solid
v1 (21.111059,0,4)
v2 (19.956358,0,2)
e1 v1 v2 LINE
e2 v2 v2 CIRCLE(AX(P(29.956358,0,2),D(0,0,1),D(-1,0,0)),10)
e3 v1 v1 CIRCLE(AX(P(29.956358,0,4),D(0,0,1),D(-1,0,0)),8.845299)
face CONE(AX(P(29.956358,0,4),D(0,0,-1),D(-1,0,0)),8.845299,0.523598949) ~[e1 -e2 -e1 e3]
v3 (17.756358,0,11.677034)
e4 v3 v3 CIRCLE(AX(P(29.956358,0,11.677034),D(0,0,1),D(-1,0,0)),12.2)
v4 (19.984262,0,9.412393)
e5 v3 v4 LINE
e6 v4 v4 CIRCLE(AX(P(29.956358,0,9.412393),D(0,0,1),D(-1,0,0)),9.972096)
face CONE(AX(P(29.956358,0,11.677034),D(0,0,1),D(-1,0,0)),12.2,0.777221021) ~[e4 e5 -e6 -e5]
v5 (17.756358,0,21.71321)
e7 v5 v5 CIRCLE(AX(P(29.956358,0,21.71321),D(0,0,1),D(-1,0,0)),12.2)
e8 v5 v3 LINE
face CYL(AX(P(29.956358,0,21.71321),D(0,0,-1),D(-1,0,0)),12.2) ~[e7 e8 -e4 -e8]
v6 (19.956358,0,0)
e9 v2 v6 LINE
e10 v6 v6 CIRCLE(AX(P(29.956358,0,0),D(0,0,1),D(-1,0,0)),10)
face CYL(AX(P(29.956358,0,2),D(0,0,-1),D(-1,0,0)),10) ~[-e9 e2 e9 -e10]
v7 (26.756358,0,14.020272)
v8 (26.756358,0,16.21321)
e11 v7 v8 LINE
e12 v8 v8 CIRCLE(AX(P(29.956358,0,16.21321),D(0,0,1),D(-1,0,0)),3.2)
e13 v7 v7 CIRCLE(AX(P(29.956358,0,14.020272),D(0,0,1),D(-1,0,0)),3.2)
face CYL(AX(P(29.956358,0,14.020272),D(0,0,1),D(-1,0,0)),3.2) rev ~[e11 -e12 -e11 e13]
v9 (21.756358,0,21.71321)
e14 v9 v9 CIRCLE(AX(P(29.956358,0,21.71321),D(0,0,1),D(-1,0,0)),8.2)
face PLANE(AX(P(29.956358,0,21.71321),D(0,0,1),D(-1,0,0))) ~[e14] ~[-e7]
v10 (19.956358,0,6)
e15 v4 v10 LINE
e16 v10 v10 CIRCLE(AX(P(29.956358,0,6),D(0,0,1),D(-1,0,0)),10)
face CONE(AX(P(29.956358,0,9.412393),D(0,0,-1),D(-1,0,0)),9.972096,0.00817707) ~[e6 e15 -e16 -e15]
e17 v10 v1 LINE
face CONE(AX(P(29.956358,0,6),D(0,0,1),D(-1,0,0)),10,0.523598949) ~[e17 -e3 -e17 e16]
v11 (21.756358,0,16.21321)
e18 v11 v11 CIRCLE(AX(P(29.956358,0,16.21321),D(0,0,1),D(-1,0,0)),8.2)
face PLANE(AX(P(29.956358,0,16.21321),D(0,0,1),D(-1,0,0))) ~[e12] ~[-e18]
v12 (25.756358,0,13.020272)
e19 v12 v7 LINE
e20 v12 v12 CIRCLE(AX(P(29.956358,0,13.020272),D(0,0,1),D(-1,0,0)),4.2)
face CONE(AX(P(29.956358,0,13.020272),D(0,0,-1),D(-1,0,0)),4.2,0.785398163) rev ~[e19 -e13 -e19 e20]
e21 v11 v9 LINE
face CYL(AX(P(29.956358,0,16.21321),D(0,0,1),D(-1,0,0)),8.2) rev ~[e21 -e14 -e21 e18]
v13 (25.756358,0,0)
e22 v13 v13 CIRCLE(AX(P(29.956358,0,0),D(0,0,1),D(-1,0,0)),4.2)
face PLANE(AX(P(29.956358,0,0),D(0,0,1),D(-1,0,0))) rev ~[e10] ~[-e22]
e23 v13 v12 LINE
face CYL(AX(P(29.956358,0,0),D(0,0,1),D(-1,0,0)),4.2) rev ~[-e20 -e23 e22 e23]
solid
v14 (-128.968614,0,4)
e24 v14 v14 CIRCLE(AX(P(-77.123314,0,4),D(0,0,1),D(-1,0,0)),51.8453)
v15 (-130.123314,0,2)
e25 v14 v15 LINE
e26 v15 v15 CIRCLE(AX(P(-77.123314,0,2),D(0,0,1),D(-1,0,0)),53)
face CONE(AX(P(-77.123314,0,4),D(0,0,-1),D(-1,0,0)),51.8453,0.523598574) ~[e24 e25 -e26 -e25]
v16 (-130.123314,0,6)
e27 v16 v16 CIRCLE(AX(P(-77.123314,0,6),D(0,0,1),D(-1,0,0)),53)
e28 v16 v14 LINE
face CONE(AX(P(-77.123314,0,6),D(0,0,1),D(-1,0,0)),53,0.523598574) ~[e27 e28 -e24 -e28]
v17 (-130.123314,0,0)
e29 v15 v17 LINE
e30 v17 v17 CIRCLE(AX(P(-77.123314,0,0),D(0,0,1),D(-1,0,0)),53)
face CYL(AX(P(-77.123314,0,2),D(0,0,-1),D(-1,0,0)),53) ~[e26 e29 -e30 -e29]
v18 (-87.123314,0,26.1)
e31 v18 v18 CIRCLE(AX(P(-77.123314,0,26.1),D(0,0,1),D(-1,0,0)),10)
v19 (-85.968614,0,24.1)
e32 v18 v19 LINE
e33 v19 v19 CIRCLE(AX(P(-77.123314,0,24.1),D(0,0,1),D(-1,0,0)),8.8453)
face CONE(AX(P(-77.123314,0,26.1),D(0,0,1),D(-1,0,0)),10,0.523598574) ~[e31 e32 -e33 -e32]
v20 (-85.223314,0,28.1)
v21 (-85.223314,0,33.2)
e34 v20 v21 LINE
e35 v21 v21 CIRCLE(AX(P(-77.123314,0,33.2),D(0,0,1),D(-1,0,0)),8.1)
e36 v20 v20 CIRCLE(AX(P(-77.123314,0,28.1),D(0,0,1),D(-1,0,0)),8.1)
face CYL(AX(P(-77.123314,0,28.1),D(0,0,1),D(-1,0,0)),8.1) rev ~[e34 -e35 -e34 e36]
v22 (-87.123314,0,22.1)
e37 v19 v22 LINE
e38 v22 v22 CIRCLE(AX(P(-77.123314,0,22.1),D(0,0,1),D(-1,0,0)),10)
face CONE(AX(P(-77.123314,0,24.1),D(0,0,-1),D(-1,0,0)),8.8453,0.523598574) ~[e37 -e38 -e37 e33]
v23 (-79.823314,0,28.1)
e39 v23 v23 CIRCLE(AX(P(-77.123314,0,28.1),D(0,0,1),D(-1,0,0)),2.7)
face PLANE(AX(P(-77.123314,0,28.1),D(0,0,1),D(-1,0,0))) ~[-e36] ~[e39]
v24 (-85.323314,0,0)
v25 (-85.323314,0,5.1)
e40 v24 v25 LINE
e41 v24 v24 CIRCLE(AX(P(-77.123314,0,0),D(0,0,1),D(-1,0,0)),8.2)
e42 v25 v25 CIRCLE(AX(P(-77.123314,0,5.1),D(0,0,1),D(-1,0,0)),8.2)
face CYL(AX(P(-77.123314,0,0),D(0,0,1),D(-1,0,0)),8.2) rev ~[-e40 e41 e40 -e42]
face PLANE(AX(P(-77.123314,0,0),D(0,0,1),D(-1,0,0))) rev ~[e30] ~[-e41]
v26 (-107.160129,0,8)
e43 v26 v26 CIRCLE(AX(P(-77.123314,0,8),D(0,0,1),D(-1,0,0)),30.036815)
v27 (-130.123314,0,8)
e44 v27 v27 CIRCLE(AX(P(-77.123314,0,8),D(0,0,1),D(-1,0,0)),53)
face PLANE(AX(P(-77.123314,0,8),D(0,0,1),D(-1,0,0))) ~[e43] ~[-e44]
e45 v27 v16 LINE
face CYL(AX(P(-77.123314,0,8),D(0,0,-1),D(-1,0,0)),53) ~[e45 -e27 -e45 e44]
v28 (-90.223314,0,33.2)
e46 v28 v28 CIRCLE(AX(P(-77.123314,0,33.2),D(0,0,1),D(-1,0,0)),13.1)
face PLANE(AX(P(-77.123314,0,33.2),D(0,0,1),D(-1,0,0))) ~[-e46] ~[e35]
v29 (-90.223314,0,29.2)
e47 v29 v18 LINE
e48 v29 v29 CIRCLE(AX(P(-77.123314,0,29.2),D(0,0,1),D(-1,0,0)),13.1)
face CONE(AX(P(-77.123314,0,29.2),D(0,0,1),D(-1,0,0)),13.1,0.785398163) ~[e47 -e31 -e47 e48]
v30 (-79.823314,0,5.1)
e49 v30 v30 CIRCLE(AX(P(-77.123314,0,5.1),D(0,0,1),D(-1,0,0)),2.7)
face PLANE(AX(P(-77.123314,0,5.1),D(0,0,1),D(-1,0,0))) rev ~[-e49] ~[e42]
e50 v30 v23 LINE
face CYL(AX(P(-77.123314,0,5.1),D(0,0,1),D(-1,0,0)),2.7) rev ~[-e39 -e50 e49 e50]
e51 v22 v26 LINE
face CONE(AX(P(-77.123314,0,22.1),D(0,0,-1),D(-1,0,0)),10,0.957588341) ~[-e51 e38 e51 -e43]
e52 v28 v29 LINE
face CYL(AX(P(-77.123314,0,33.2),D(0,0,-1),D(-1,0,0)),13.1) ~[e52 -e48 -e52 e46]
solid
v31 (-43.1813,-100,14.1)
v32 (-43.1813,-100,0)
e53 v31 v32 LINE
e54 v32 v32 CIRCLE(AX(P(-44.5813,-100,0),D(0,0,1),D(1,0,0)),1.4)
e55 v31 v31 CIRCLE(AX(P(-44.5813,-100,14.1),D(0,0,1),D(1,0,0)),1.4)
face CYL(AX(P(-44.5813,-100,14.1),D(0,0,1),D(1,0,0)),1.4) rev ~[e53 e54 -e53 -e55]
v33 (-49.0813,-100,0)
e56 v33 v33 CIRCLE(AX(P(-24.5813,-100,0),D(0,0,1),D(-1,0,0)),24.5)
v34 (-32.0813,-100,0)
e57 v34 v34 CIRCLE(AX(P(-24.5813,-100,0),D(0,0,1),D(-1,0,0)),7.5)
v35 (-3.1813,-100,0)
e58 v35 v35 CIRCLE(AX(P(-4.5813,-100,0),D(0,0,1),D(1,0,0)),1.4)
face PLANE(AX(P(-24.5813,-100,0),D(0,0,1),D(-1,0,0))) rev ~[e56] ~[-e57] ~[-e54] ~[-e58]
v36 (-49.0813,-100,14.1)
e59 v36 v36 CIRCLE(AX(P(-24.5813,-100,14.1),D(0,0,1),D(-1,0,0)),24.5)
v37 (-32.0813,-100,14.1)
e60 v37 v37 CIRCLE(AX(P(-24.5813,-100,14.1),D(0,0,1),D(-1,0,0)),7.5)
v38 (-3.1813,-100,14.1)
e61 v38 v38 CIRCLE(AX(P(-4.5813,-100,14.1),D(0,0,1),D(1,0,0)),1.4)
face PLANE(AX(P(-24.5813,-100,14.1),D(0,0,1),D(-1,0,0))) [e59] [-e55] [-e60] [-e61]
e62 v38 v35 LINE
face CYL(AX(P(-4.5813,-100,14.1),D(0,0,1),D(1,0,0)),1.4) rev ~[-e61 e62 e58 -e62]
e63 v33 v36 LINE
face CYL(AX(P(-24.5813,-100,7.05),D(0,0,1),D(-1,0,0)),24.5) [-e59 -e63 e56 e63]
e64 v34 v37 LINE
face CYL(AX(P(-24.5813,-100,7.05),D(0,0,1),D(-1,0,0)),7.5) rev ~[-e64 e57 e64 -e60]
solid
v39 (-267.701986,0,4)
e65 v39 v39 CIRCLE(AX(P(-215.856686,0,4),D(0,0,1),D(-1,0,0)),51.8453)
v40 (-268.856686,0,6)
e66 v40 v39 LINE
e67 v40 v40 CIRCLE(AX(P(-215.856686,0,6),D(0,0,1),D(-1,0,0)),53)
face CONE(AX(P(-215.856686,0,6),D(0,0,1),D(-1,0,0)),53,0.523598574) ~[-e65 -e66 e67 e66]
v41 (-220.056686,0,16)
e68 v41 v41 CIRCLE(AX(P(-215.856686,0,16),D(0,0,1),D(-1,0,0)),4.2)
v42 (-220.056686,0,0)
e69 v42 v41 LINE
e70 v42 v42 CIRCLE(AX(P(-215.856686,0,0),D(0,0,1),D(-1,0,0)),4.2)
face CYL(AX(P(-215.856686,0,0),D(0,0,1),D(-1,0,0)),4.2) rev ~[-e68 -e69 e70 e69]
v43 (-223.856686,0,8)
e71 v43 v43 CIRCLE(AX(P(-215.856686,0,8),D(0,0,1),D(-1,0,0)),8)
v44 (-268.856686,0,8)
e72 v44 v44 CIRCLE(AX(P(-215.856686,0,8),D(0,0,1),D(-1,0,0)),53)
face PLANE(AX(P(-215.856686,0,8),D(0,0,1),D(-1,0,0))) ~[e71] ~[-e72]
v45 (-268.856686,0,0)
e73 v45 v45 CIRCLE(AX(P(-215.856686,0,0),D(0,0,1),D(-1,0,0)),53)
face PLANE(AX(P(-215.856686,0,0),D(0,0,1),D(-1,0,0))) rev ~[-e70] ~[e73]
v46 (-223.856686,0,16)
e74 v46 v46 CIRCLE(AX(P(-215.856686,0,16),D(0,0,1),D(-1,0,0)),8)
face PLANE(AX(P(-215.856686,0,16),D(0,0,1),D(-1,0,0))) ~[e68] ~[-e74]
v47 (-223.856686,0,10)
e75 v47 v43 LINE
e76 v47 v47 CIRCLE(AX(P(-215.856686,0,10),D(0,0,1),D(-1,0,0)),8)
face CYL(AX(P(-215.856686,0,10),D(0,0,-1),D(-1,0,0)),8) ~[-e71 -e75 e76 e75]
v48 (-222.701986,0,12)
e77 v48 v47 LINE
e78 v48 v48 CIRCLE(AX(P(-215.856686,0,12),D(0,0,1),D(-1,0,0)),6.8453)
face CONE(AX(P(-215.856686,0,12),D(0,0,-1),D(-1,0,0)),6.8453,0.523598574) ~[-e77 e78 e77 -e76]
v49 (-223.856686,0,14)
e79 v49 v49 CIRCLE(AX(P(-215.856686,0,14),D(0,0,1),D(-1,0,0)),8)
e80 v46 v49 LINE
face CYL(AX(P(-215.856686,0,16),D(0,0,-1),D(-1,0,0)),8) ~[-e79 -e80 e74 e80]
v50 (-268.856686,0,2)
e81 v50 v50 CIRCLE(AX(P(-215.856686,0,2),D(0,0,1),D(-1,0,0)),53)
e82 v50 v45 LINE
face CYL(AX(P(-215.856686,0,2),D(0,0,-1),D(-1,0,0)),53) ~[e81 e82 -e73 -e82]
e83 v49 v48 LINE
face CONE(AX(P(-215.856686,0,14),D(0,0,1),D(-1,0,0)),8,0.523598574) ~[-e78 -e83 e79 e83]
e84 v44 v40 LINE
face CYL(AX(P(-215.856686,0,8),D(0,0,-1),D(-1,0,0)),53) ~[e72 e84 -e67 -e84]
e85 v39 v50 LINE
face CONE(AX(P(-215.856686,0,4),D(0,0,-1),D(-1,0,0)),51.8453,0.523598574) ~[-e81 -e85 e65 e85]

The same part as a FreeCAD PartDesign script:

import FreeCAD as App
import Part
import Sketcher
from FreeCAD import Vector
Q = App.Units.Quantity


def add_polygon(sketch, points):
    """Adds a closed chain of lines whose ends are joined by coincident constraints."""
    first, n = sketch.GeometryCount, len(points)
    for a, b in zip(points, points[1:] + points[:1]):
        sketch.addGeometry(Part.LineSegment(App.Vector(*a, 0), App.Vector(*b, 0)), False)
    for i in range(n):
        sketch.addConstraint(Sketcher.Constraint("Coincident", first + i, 2, first + (i + 1) % n, 1))

doc = App.newDocument("Part")
body = doc.addObject("PartDesign::Body", "Body")

sketch1 = body.newObject("Sketcher::SketchObject", "Sketch")
sketch1.AttachmentSupport = (doc.getObject("XZ_Plane"), [""])
sketch1.MapMode = "FlatFace"
add_polygon(sketch1, [(25.8, 13), (26.8, 14), (26.8, 16.2), (21.8, 16.2), (21.8, 21.7), (17.8, 21.7), (17.8, 11.7), (20, 9.4), (20, 6), (21.1, 4), (20, 2), (20, 0), (25.8, 0)])
sketch1.addGeometry(Part.LineSegment(Vector(30, 0, 0), Vector(30, 21.7, 0)), True)
sketch1.addConstraint([
    Sketcher.Constraint("Vertical", 1),
    Sketcher.Constraint("Horizontal", 2),
    Sketcher.Constraint("Vertical", 3),
    Sketcher.Constraint("Horizontal", 4),
    Sketcher.Constraint("Vertical", 5),
    Sketcher.Constraint("Vertical", 10),
    Sketcher.Constraint("Horizontal", 11),
    Sketcher.Constraint("Vertical", 12),
    Sketcher.Constraint("Vertical", 13),
    Sketcher.Constraint("PointOnObject", 10, 2, -1),
    Sketcher.Constraint("PointOnObject", 13, 1, -1),
    Sketcher.Constraint("Horizontal", 4, 2, 13, 2),
    Sketcher.Constraint("Vertical", 7, 2, 9, 2),
    Sketcher.Constraint("Equal", 8, 9),
    Sketcher.Constraint("DistanceX", 2, 2, 2, 1, 5.0),
    Sketcher.Constraint("DistanceX", 4, 2, 4, 1, 4.0),
    Sketcher.Constraint("DistanceY", 10, 2, 10, 1, 2.0),
    Sketcher.Constraint("Angle", 0, Q("45 deg")),
    Sketcher.Constraint("Angle", 8, Q("-59.99999 deg")),
    Sketcher.Constraint("DistanceX", 11, 1, 11, 2, 5.8),
    Sketcher.Constraint("DistanceY", 3, 1, 3, 2, 5.5),
    Sketcher.Constraint("DistanceY", -1, 1, 7, 2, 6.0),
    Sketcher.Constraint("DistanceX", 12, 2, 0, 2, 1.0),
    Sketcher.Constraint("DistanceX", 10, 2, 13, 1, 10.0),
    Sketcher.Constraint("DistanceY", 13, 1, 13, 2, 21.71321),
    Sketcher.Constraint("DistanceY", 1, 1, 1, 2, 2.192938),
    Sketcher.Constraint("DistanceY", 5, 2, 5, 1, 10.036176),
    Sketcher.Constraint("DistanceX", -1, 1, 7, 2, 19.956358),
    Sketcher.Constraint("DistanceY", 6, 2, 5, 2, 2.264641),
    Sketcher.Constraint("Distance", 6, 3.176815),
])
revolution = body.newObject("PartDesign::Revolution", "Revolution")
revolution.Profile = sketch1
revolution.ReferenceAxis = (sketch1, ["Axis0"])
revolution.Angle = 360
body2 = doc.addObject("PartDesign::Body", "Body001")

sketch2 = body2.newObject("Sketcher::SketchObject", "Sketch001")
sketch2.AttachmentSupport = (doc.getObject("XZ_Plane001"), [""])
sketch2.MapMode = "FlatFace"
add_polygon(sketch2, [(-130.1, 2), (-130.1, 0), (-85.3, 0), (-85.3, 5.1), (-79.8, 5.1), (-79.8, 28.1), (-85.2, 28.1), (-85.2, 33.2), (-90.2, 33.2), (-90.2, 29.2), (-87.1, 26.1), (-86, 24.1), (-87.1, 22.1), (-107.2, 8), (-130.1, 8), (-130.1, 6), (-129, 4)])
sketch2.addGeometry(Part.LineSegment(Vector(-77.1, 0, 0), Vector(-77.1, 33.2, 0)), True)
sketch2.addConstraint([
    Sketcher.Constraint("Vertical", 0),
    Sketcher.Constraint("Horizontal", 1),
    Sketcher.Constraint("Vertical", 2),
    Sketcher.Constraint("Horizontal", 3),
    Sketcher.Constraint("Vertical", 4),
    Sketcher.Constraint("Horizontal", 5),
    Sketcher.Constraint("Vertical", 6),
    Sketcher.Constraint("Horizontal", 7),
    Sketcher.Constraint("Vertical", 8),
    Sketcher.Constraint("Horizontal", 13),
    Sketcher.Constraint("Vertical", 14),
    Sketcher.Constraint("Vertical", 17),
    Sketcher.Constraint("PointOnObject", 0, 2, -1),
    Sketcher.Constraint("PointOnObject", 17, 1, -1),
    Sketcher.Constraint("Parallel", 10, 15),
    Sketcher.Constraint("Parallel", 11, 16),
    Sketcher.Constraint("Horizontal", 7, 2, 17, 2),
    Sketcher.Constraint("Vertical", 9, 2, 11, 2),
    Sketcher.Constraint("Vertical", 0, 2, 13, 2),
    Sketcher.Constraint("Equal", 2, 6),
    Sketcher.Constraint("Equal", 0, 14),
    Sketcher.Constraint("Equal", 10, 11),
    Sketcher.Constraint("Equal", 11, 15),
    Sketcher.Constraint("DistanceX", 7, 2, 7, 1, 5.0),
    Sketcher.Constraint("DistanceY", 0, 2, 0, 1, 2.0),
    Sketcher.Constraint("DistanceY", 4, 1, 4, 2, 23.0),
    Sketcher.Constraint("DistanceY", 8, 2, 8, 1, 4.0),
    Sketcher.Constraint("Angle", 9, Q("-45 deg")),
    Sketcher.Constraint("Angle", 10, Q("-60.000012 deg")),
    Sketcher.Constraint("DistanceX", 1, 1, 1, 2, 44.8),
    Sketcher.Constraint("DistanceX", 3, 1, 3, 2, 5.5),
    Sketcher.Constraint("DistanceX", 5, 2, 5, 1, 5.4),
    Sketcher.Constraint("DistanceY", 2, 1, 2, 2, 5.1),
    Sketcher.Constraint("DistanceY", -1, 1, 12, 2, 8.0),
    Sketcher.Constraint("DistanceY", 9, 2, 5, 2, 2.0),
    Sketcher.Constraint("DistanceX", 11, 2, 17, 1, 10.0),
    Sketcher.Constraint("DistanceX", 13, 2, 13, 1, 22.963185),
    Sketcher.Constraint("DistanceX", 12, 2, -1, 1, 107.160129),
])
revolution2 = body2.newObject("PartDesign::Revolution", "Revolution001")
revolution2.Profile = sketch2
revolution2.ReferenceAxis = (sketch2, ["Axis0"])
revolution2.Angle = 360
body3 = doc.addObject("PartDesign::Body", "Body002")

sketch3 = body3.newObject("Sketcher::SketchObject", "Sketch002")
sketch3.AttachmentSupport = (doc.getObject("XZ_Plane002"), [""])
sketch3.MapMode = "FlatFace"
add_polygon(sketch3, [(-268.9, 2), (-268.9, 0), (-220.1, 0), (-220.1, 16), (-223.9, 16), (-223.9, 14), (-222.7, 12), (-223.9, 10), (-223.9, 8), (-268.9, 8), (-268.9, 6), (-267.7, 4)])
sketch3.addGeometry(Part.LineSegment(Vector(-215.9, 0, 0), Vector(-215.9, 16, 0)), True)
sketch3.addConstraint([
    Sketcher.Constraint("Vertical", 0),
    Sketcher.Constraint("Horizontal", 1),
    Sketcher.Constraint("Vertical", 2),
    Sketcher.Constraint("Horizontal", 3),
    Sketcher.Constraint("Vertical", 4),
    Sketcher.Constraint("Vertical", 7),
    Sketcher.Constraint("Horizontal", 8),
    Sketcher.Constraint("Vertical", 9),
    Sketcher.Constraint("Vertical", 12),
    Sketcher.Constraint("PointOnObject", 0, 2, -1),
    Sketcher.Constraint("PointOnObject", 12, 1, -1),
    Sketcher.Constraint("Parallel", 5, 10),
    Sketcher.Constraint("Parallel", 6, 11),
    Sketcher.Constraint("Horizontal", 3, 2, 12, 2),
    Sketcher.Constraint("Vertical", 4, 2, 6, 2),
    Sketcher.Constraint("Vertical", 0, 2, 8, 2),
    Sketcher.Constraint("Equal", 0, 4),
    Sketcher.Constraint("Equal", 4, 7),
    Sketcher.Constraint("Equal", 7, 9),
    Sketcher.Constraint("Equal", 5, 6),
    Sketcher.Constraint("Equal", 6, 10),
    Sketcher.Constraint("DistanceX", 8, 2, 8, 1, 45.0),
    Sketcher.Constraint("DistanceY", 0, 2, 0, 1, 2.0),
    Sketcher.Constraint("DistanceY", 2, 1, 2, 2, 16.0),
    Sketcher.Constraint("Angle", 5, Q("-60.000012 deg")),
    Sketcher.Constraint("DistanceX", 1, 1, 1, 2, 48.8),
    Sketcher.Constraint("DistanceX", 7, 2, 12, 1, 8.0),
    Sketcher.Constraint("DistanceX", 0, 2, -1, 1, 268.856686),
])
revolution3 = body3.newObject("PartDesign::Revolution", "Revolution002")
revolution3.Profile = sketch3
revolution3.ReferenceAxis = (sketch3, ["Axis0"])
revolution3.Angle = 360
body4 = doc.addObject("PartDesign::Body", "Body003")

sketch4 = body4.newObject("Sketcher::SketchObject", "Sketch003")
sketch4.AttachmentSupport = (doc.getObject("XZ_Plane003"), [""])
sketch4.MapMode = "FlatFace"
sketch4.AttachmentOffset = App.Placement(Vector(0, 0, 100), App.Rotation())
add_polygon(sketch4, [(-49, 14), (-49, 0), (-32, 0), (-32, 14)])
sketch4.addGeometry(Part.LineSegment(Vector(-25, 0, 0), Vector(-25, 14, 0)), True)
sketch4.addConstraint([
    Sketcher.Constraint("Vertical", 0),
    Sketcher.Constraint("Horizontal", 1),
    Sketcher.Constraint("Vertical", 2),
    Sketcher.Constraint("Horizontal", 3),
    Sketcher.Constraint("Vertical", 4),
    Sketcher.Constraint("PointOnObject", 0, 2, -1),
    Sketcher.Constraint("PointOnObject", 4, 1, -1),
    Sketcher.Constraint("Horizontal", 3, 2, 4, 2),
    Sketcher.Constraint("DistanceX", 1, 1, 1, 2, 17.0),
    Sketcher.Constraint("DistanceY", 0, 2, 0, 1, 14.1),
    Sketcher.Constraint("DistanceX", 1, 2, 4, 1, 7.5),
    Sketcher.Constraint("DistanceX", 0, 2, -1, 1, 49.0813),
])
revolution4 = body4.newObject("PartDesign::Revolution", "Revolution003")
revolution4.Profile = sketch4
revolution4.ReferenceAxis = (sketch4, ["Axis0"])
revolution4.Angle = 360

sketch5 = body4.newObject("Sketcher::SketchObject", "Sketch004")
sketch5.AttachmentSupport = (doc.getObject("XY_Plane003"), [""])
sketch5.MapMode = "FlatFace"
sketch5.AttachmentOffset = App.Placement(Vector(0, 0, 14.1), App.Rotation())
sketch5.addGeometry([
    Part.Circle(Vector(-44.6, -100, 0), Vector(0, 0, 1), 1.4),
    Part.Circle(Vector(-4.6, -100, 0), Vector(0, 0, 1), 1.4),
], False)
sketch5.addConstraint([
    Sketcher.Constraint("Equal", 0, 1),
    Sketcher.Constraint("Horizontal", 0, 3, 1, 3),
    Sketcher.Constraint("Diameter", 0, 2.8),
    Sketcher.Constraint("DistanceY", 0, 3, -1, 1, 100.0),
    Sketcher.Constraint("DistanceX", 0, 3, 1, 3, 40.0),
    Sketcher.Constraint("DistanceX", 0, 3, -1, 1, 44.5813),
])
pocket1 = body4.newObject("PartDesign::Pocket", "Pocket")
pocket1.Profile = sketch5
pocket1.Length = 25

doc.recompute()
